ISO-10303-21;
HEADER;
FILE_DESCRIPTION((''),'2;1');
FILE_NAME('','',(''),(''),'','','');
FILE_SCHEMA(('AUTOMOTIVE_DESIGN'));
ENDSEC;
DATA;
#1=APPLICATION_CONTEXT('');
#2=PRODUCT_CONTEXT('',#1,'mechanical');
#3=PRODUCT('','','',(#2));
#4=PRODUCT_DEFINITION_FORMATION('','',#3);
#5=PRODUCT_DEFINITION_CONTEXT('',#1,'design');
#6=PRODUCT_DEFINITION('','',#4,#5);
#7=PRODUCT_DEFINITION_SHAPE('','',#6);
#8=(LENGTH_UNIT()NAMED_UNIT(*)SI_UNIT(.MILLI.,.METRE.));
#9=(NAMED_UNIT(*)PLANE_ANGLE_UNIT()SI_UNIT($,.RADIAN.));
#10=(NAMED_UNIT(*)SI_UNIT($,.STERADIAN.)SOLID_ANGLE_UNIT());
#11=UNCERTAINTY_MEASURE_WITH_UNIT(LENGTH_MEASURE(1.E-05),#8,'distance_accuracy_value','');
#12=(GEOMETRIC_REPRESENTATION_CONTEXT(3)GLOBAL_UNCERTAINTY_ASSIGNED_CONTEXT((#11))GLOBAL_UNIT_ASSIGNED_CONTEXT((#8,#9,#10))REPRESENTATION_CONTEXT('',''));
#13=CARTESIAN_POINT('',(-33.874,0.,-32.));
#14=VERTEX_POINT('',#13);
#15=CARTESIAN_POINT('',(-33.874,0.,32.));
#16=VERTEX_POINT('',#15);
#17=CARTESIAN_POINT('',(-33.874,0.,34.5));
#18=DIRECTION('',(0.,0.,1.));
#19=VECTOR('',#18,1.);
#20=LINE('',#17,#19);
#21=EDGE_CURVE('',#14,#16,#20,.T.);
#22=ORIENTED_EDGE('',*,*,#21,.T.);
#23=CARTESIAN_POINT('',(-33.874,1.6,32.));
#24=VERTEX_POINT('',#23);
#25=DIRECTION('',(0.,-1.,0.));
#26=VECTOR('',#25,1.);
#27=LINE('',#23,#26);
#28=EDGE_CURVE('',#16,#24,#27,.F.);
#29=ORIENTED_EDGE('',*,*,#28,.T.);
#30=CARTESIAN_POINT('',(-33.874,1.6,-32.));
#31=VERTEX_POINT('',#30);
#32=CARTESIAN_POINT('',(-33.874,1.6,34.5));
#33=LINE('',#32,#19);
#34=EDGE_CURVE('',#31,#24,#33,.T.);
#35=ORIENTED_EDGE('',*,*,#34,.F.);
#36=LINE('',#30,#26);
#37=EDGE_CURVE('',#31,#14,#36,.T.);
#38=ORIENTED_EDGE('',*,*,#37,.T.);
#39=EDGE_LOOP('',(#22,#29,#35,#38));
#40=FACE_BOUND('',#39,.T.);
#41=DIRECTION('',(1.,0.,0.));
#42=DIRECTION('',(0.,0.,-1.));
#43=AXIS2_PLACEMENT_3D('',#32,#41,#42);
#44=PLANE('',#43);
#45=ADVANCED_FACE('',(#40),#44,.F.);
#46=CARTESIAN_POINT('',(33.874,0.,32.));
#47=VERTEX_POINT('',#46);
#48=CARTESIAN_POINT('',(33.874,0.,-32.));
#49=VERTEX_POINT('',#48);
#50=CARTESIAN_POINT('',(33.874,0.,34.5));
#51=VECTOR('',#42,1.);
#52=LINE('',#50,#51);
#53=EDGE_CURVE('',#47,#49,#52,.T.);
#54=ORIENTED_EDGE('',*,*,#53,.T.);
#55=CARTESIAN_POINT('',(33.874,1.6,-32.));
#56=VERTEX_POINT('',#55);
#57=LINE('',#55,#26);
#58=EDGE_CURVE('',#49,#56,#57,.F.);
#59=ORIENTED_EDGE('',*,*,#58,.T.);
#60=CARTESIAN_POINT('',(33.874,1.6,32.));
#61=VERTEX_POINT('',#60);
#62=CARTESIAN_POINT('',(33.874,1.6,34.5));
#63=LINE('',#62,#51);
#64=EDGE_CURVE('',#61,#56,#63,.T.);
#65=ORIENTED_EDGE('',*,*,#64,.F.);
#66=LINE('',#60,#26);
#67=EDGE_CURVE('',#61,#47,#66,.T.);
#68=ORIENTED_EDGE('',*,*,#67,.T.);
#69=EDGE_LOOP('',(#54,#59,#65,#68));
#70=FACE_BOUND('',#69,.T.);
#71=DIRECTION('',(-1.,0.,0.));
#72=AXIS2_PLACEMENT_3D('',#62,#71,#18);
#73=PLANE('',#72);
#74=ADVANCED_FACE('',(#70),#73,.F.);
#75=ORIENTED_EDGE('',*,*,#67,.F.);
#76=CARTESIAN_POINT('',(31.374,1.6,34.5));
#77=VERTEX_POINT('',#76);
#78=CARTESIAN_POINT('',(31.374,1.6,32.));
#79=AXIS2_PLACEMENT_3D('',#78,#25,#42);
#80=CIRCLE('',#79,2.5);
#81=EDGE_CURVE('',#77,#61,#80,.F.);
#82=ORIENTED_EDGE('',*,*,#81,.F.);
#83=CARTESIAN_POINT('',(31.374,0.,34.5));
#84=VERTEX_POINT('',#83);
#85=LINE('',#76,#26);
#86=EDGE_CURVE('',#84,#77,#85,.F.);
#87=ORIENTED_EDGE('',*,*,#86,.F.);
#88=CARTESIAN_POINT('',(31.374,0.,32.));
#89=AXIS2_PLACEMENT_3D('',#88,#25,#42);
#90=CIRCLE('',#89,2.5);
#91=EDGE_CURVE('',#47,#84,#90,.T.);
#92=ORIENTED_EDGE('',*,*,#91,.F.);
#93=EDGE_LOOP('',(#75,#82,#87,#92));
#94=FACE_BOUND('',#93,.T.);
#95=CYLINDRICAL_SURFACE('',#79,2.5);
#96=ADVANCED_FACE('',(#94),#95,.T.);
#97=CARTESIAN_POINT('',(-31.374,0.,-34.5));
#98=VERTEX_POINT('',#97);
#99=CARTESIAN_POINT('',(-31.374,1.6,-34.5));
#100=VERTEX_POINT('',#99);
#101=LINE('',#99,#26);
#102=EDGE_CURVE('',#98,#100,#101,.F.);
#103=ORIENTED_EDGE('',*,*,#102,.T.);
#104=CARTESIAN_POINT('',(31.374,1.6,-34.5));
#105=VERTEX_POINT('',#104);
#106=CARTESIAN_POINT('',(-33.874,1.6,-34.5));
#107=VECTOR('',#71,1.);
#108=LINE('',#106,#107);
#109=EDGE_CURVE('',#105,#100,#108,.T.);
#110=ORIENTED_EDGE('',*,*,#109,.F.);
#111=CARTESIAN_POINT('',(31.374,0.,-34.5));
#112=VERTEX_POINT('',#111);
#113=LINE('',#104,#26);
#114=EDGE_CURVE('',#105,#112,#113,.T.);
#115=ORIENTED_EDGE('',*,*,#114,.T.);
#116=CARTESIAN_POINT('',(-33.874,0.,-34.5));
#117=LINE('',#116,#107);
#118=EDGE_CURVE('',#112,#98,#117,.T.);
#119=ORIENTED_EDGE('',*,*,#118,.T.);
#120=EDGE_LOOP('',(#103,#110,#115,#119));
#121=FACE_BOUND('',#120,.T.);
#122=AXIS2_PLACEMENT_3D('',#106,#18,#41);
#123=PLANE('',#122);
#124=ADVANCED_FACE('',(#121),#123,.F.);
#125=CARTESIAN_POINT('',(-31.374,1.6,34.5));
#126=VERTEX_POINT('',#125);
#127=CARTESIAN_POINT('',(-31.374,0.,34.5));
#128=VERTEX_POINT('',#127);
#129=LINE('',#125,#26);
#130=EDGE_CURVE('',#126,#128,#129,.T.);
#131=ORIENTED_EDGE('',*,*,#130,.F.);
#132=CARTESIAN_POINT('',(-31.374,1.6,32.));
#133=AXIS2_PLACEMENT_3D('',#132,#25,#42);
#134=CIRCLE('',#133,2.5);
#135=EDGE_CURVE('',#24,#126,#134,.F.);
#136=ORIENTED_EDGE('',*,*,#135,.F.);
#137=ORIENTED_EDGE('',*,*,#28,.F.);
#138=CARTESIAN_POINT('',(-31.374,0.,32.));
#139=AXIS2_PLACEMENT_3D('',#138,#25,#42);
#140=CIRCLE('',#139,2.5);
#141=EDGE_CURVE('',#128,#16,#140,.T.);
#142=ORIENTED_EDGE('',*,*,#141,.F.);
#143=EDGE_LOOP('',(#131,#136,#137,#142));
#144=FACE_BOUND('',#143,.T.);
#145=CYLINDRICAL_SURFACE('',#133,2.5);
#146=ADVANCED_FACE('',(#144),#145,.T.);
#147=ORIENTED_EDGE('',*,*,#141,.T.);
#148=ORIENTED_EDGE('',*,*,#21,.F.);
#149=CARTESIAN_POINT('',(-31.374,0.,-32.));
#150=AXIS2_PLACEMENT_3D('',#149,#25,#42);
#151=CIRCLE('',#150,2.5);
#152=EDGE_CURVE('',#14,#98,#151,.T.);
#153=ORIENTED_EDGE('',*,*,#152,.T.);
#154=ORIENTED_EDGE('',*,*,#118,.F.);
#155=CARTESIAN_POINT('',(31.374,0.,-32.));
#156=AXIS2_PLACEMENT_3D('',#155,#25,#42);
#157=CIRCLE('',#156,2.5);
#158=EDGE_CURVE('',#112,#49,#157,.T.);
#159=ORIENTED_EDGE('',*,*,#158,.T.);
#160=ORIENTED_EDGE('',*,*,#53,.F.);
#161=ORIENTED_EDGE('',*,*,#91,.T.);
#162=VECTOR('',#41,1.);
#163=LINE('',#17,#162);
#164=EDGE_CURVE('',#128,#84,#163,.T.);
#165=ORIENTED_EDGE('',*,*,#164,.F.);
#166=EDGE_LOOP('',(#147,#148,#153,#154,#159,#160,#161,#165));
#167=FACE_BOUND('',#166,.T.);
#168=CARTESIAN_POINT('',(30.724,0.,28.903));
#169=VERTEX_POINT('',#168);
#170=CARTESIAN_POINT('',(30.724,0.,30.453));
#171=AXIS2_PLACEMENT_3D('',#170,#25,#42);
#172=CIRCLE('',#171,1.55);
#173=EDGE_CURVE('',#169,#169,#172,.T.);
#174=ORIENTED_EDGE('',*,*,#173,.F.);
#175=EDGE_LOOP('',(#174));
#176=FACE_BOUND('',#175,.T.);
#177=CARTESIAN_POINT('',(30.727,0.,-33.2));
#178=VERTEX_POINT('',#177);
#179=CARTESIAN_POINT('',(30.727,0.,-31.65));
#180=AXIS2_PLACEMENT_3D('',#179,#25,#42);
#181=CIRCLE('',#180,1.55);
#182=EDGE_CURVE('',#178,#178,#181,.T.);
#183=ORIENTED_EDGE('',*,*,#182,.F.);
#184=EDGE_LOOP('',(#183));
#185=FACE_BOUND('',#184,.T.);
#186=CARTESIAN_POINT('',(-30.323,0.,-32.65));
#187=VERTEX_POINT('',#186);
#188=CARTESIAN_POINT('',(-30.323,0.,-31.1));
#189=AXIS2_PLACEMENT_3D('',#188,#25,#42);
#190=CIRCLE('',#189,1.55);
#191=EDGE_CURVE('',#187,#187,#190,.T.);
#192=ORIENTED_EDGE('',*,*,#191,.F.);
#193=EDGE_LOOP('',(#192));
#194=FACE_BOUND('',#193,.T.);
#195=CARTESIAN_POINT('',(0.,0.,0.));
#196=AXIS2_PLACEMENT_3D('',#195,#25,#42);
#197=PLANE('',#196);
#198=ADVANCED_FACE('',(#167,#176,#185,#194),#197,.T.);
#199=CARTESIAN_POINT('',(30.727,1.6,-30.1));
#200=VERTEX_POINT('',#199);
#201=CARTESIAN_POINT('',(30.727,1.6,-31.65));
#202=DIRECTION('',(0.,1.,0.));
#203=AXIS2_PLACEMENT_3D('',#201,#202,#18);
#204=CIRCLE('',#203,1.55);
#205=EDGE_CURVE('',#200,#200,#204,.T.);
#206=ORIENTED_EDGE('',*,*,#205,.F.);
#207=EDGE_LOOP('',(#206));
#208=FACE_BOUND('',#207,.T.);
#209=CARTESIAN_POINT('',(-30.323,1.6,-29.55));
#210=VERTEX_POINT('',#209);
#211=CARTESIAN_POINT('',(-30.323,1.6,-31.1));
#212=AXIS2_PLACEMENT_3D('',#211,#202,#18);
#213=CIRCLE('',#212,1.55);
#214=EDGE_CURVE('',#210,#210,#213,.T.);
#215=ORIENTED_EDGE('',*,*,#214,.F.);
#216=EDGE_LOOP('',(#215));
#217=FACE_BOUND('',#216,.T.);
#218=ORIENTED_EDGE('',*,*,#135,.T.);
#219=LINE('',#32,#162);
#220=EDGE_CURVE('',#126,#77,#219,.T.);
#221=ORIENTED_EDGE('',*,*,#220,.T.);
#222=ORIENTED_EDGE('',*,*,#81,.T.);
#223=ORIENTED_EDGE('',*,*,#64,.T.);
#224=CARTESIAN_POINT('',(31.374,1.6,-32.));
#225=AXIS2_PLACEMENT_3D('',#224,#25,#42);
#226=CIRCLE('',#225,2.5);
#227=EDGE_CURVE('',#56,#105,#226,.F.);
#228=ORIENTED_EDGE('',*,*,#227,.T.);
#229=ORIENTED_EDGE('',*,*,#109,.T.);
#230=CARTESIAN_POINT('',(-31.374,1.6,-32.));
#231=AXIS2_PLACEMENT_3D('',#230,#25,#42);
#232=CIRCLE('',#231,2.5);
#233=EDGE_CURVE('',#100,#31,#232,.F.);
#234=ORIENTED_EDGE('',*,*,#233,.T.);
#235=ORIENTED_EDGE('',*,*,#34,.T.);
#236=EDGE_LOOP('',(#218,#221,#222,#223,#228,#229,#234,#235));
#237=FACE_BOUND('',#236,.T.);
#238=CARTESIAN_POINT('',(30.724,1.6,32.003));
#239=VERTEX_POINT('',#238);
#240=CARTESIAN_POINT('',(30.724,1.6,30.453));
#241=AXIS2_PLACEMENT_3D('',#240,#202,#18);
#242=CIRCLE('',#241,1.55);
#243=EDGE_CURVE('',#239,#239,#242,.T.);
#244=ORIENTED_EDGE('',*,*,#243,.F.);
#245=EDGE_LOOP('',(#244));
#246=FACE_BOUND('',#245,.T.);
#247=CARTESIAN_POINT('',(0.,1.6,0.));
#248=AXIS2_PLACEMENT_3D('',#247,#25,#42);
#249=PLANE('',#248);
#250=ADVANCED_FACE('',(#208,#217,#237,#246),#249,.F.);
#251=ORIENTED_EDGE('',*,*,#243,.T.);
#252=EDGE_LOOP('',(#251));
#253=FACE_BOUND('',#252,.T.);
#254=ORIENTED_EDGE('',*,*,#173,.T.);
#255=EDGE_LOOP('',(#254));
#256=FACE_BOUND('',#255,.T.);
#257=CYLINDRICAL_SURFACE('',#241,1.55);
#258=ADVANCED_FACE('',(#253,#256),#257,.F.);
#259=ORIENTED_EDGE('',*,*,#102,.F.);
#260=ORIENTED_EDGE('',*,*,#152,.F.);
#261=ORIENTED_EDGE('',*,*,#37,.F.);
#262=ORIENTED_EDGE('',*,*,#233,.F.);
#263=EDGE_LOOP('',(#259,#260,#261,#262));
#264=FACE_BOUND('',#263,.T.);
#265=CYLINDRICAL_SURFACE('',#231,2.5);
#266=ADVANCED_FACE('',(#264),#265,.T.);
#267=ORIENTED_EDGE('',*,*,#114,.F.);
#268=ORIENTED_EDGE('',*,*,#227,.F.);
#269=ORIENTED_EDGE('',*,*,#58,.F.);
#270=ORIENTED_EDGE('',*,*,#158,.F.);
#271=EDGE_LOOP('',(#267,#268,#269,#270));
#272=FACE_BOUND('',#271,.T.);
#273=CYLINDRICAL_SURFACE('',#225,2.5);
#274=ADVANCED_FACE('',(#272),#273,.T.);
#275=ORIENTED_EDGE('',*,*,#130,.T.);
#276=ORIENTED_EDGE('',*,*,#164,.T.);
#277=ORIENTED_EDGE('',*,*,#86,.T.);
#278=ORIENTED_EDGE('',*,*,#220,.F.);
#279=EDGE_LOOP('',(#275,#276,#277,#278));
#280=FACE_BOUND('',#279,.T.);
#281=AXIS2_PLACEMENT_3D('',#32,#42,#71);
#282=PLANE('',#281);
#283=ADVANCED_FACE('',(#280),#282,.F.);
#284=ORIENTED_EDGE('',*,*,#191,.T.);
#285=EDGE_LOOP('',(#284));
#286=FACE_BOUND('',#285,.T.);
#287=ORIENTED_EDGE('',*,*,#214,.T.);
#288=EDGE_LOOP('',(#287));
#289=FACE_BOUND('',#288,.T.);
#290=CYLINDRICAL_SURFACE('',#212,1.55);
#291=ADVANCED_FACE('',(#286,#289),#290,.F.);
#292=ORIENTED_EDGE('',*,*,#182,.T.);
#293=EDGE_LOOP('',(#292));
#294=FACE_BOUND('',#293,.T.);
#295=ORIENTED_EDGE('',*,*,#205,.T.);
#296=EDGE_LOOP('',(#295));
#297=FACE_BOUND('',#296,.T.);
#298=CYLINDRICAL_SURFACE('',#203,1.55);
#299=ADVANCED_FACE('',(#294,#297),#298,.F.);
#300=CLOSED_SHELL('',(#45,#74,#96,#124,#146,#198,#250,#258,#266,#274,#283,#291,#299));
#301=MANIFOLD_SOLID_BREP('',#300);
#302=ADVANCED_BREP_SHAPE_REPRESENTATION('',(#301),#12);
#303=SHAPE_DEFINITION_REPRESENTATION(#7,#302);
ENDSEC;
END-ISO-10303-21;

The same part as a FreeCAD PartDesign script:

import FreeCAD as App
import Part
import Sketcher
from FreeCAD import Vector
Q = App.Units.Quantity


def edges_at(feature, points):
    """Names of the edges that pass closest to the given points."""
    edges = feature.Shape.Edges
    near = lambda p: min(range(len(edges)), key=lambda i: edges[i].distToShape(Part.Vertex(*p))[0])
    return sorted({f"Edge{near(p) + 1}" for p in points})


def add_polygon(sketch, points):
    """Adds a closed chain of lines whose ends are joined by coincident constraints."""
    first, n = sketch.GeometryCount, len(points)
    for a, b in zip(points, points[1:] + points[:1]):
        sketch.addGeometry(Part.LineSegment(App.Vector(*a, 0), App.Vector(*b, 0)), False)
    for i in range(n):
        sketch.addConstraint(Sketcher.Constraint("Coincident", first + i, 2, first + (i + 1) % n, 1))

doc = App.newDocument("Part")
body = doc.addObject("PartDesign::Body", "Body")

# Sketch on XZ plane
sketch1 = body.newObject("Sketcher::SketchObject", "Sketch")
sketch1.AttachmentSupport = (doc.getObject("XZ_Plane"), [""])
sketch1.MapMode = "FlatFace"
add_polygon(sketch1, [(-34, -34), (-34, 34), (34, 34), (34, -34)])  # lines 0-3
sketch1.addConstraint([
    Sketcher.Constraint("Vertical", 0),
    Sketcher.Constraint("Horizontal", 1),
    Sketcher.Constraint("Vertical", 2),
    Sketcher.Constraint("Horizontal", 3),
    Sketcher.Constraint("Symmetric", 0, 2, 2, 2, -1, 1),
    Sketcher.Constraint("DistanceY", 0, 1, 0, 2, Q("69 mm")),
    Sketcher.Constraint("DistanceX", 1, 1, 1, 2, Q("67.748 mm")),
])
pad1 = body.newObject("PartDesign::Pad", "Pad")
pad1.Profile = sketch1
pad1.Length = 1.6
pad1.Reversed = True

# Sketch on XZ plane
sketch2 = body.newObject("Sketcher::SketchObject", "Sketch001")
sketch2.AttachmentSupport = (doc.getObject("XZ_Plane"), [""])
sketch2.MapMode = "FlatFace"
sketch2.AttachmentOffset = App.Placement(Vector(0, 0, -1.6), App.Rotation())
sketch2.addGeometry([
    Part.Circle(Vector(30.7, 30.5, 0), Vector(0, 0, 1), 1.6),
    Part.Circle(Vector(-30.3, -31.1, 0), Vector(0, 0, 1), 1.6),
    Part.Circle(Vector(30.7, -31.6, 0), Vector(0, 0, 1), 1.6),
], False)
sketch2.addConstraint([
    Sketcher.Constraint("Equal", 0, 1),
    Sketcher.Constraint("Equal", 1, 2),
    Sketcher.Constraint("Diameter", 0, Q("3.1 mm")),
    Sketcher.Constraint("DistanceY", 1, 3, -1, 1, Q("31.1 mm")),
    Sketcher.Constraint("DistanceY", 2, 3, -1, 1, Q("31.65 mm")),
    Sketcher.Constraint("DistanceX", 1, 3, 2, 3, Q("61.05 mm")),
    Sketcher.Constraint("DistanceX", -1, 1, 0, 3, Q("30.724 mm")),
    Sketcher.Constraint("DistanceY", -1, 1, 0, 3, Q("30.453 mm")),
    Sketcher.Constraint("DistanceX", 1, 3, -1, 1, Q("30.323 mm")),
])
doc.recompute()
hole = body.newObject("PartDesign::Hole", "Hole")
hole.Profile = sketch2
hole.ThreadType = "None"
hole.Diameter = 3.1
hole.DepthType = "Dimension"
hole.Depth = 50.8
hole.DrillPoint = "Angled"
hole.DrillPointAngle = 118
hole.Reversed = True
doc.recompute()

fillet = body.newObject("PartDesign::Fillet", "Fillet")
fillet.Base = (hole, edges_at(hole, [
    (33.874, 0.8, 34.5),
    (-33.874, 0.8, 34.5),
    (-33.874, 0.8, -34.5),
    (33.874, 0.8, -34.5),
]))
fillet.Radius = 2.5

doc.recompute()
